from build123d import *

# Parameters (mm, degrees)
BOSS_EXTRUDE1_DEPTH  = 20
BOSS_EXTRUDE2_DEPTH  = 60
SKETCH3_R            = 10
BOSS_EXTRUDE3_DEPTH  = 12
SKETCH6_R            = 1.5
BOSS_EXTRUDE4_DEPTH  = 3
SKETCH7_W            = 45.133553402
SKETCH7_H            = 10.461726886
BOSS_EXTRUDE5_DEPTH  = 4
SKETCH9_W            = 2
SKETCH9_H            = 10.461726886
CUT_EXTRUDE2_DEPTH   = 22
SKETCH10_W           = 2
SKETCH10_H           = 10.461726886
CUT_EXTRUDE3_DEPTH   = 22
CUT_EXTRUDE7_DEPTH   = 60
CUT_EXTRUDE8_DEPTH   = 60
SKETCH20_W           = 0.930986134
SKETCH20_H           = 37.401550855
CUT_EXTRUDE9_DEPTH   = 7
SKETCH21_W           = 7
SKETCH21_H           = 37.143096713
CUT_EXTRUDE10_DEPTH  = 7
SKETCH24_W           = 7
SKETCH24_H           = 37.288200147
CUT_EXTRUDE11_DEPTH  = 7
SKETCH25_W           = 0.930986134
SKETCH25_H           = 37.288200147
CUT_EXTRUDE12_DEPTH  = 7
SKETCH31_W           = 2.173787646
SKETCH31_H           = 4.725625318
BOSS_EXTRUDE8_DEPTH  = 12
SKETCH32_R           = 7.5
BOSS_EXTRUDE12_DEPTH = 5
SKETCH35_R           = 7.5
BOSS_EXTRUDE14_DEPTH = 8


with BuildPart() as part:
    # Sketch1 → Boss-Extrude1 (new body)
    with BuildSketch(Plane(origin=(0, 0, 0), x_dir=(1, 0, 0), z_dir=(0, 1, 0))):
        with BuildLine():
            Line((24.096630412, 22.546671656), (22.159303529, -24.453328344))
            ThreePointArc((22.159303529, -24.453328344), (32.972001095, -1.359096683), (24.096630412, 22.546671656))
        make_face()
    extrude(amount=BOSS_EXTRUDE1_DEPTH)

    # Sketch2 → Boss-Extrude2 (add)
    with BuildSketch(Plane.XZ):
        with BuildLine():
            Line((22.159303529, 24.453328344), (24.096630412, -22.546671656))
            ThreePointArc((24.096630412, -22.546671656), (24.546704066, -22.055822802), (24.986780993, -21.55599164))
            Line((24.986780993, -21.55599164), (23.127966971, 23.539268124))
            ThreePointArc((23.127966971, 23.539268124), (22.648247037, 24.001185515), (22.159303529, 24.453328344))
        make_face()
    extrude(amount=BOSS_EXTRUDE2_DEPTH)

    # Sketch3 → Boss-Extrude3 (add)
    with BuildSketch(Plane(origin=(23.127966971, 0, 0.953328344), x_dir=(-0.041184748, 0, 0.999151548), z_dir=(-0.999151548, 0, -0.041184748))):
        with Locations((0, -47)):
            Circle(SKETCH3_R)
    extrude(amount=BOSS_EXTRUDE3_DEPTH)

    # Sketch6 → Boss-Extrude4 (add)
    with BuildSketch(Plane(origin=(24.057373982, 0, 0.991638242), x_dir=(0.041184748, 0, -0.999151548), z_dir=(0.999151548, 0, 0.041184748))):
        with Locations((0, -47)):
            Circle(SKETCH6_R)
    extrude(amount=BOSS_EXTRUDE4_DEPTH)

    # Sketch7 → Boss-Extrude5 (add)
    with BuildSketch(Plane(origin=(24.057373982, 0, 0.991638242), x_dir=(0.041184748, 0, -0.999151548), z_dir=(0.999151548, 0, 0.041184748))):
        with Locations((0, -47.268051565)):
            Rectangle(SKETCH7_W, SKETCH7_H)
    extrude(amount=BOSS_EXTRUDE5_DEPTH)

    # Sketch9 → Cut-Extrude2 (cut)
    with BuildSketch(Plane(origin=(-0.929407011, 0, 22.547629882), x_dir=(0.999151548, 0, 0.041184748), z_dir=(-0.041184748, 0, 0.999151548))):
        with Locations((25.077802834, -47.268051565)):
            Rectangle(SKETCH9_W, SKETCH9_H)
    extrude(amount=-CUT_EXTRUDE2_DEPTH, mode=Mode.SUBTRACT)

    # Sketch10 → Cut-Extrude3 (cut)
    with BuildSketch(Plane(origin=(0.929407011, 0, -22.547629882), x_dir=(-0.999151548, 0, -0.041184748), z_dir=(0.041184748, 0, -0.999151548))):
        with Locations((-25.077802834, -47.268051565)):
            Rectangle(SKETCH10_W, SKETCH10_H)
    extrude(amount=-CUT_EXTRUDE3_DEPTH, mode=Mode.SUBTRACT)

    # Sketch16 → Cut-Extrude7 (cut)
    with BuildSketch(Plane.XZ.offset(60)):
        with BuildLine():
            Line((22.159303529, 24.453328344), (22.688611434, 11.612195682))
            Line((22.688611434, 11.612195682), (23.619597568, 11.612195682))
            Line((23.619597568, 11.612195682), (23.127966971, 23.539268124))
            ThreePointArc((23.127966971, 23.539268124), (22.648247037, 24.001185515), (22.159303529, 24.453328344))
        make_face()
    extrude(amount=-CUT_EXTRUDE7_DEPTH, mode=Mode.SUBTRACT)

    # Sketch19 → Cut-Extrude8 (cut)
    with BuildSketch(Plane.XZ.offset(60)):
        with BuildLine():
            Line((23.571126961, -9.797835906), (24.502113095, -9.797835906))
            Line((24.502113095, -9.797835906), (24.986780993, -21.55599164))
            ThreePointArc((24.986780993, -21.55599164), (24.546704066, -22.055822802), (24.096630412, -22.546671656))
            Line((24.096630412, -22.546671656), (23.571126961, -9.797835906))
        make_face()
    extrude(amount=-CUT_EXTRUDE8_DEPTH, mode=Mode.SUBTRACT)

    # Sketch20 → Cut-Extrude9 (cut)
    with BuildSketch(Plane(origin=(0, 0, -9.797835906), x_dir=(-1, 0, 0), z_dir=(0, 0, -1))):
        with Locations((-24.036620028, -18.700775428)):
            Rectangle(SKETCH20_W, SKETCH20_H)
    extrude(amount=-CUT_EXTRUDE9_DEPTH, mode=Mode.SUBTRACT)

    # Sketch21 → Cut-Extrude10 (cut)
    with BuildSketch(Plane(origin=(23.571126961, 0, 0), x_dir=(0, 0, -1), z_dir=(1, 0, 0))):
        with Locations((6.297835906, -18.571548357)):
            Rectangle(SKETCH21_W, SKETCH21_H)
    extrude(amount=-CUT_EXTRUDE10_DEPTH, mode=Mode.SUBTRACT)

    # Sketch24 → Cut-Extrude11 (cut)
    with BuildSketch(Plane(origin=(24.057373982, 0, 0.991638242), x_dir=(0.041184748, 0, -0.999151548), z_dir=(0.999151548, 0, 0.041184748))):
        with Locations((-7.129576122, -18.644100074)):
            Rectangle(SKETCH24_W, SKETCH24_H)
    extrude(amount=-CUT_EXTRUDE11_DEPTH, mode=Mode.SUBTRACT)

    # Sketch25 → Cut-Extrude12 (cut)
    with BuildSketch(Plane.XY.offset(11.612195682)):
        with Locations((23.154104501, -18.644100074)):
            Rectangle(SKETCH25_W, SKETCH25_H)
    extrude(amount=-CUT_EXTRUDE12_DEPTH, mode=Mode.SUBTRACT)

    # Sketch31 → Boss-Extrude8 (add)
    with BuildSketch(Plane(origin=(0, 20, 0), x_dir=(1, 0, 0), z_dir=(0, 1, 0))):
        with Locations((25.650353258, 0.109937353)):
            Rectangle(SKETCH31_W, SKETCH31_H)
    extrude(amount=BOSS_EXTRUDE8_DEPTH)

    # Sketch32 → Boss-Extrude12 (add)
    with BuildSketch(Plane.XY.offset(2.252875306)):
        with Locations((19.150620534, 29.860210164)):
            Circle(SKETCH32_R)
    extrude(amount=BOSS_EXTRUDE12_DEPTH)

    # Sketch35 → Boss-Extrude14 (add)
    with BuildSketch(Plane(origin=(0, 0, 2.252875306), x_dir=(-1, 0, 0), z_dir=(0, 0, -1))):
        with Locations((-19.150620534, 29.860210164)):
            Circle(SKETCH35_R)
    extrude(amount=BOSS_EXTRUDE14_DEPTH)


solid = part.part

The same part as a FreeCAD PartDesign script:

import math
import FreeCAD as App
import Part
import Sketcher

V = App.Vector


def add_polygon(sketch, points):
    """Adds a closed chain of lines whose ends are joined by coincident constraints."""
    first, n = sketch.GeometryCount, len(points)
    for a, b in zip(points, points[1:] + points[:1]):
        sketch.addGeometry(Part.LineSegment(App.Vector(*a, 0), App.Vector(*b, 0)), False)
    for i in range(n):
        sketch.addConstraint(Sketcher.Constraint("Coincident", first + i, 2, first + (i + 1) % n, 1))

doc = App.newDocument("Part")
body = doc.addObject("PartDesign::Body", "Body")

sketch1 = body.newObject("Sketcher::SketchObject", "Sketch")
sketch1.AttachmentSupport = (doc.getObject("XZ_Plane"), [""])
sketch1.MapMode = "FlatFace"
sketch1.addGeometry([
    Part.LineSegment(V(24, -23, 0), V(22, 24, 0)),
    Part.ArcOfCircle(Part.Circle(V(0, 0, 0), V(0, 0, 1), 33), math.radians(-43), math.radians(48)),
], False)
sketch1.addConstraint([
    Sketcher.Constraint("Coincident", 0, 1, 1, 1),
    Sketcher.Constraint("Coincident", 1, 2, 0, 2),
    Sketcher.Constraint("Coincident", 1, 3, -1, 1),
    Sketcher.Constraint("Radius", 1, 33.0),
    Sketcher.Constraint("DistanceY", 0, 1, 1, 2, 47.0),
    Sketcher.Constraint("Distance", 0, 47.039911),
])
pad1 = body.newObject("PartDesign::Pad", "Pad")
pad1.Profile = sketch1
pad1.Length = 20
pad1.Reversed = True

sketch2 = body.newObject("Sketcher::SketchObject", "Sketch001")
sketch2.AttachmentSupport = (doc.getObject("XZ_Plane"), [""])
sketch2.MapMode = "FlatFace"
sketch2.addGeometry([
    Part.LineSegment(V(22.2, 24.5, 0), V(24.1, -22.5, 0)),
    Part.ArcOfCircle(Part.Circle(V(0, 0, 0), V(0, 0, 1), 33), math.radians(-43.1), math.radians(-40.78)),
    Part.LineSegment(V(25, -21.6, 0), V(23.1, 23.5, 0)),
    Part.ArcOfCircle(Part.Circle(V(0, 0, 0), V(0, 0, 1), 33), math.radians(45.5), math.radians(47.82)),
], False)
sketch2.addConstraint([
    Sketcher.Constraint("Coincident", 0, 2, 1, 1),
    Sketcher.Constraint("Coincident", 1, 2, 2, 1),
    Sketcher.Constraint("Coincident", 2, 2, 3, 1),
    Sketcher.Constraint("Coincident", 3, 2, 0, 1),
    Sketcher.Constraint("Coincident", 1, 3, -1, 1),
    Sketcher.Constraint("Coincident", 3, 3, -1, 1),
    Sketcher.Constraint("Parallel", 0, 2),
    Sketcher.Constraint("Radius", 1, 33.0),
    Sketcher.Constraint("DistanceY", 0, 2, 3, 2, 47.0),
    Sketcher.Constraint("Radius", 3, 33.000002),
    Sketcher.Constraint("Distance", 0, 47.039911),
    Sketcher.Constraint("DistanceX", -1, 1, 1, 2, 24.986781),
])
pad2 = body.newObject("PartDesign::Pad", "Pad001")
pad2.Profile = sketch2
pad2.Length = 60

sketch3 = body.newObject("Sketcher::SketchObject", "Sketch002")
sketch3.Placement = App.Placement(V(23.127967, 0, 0.953328), App.Rotation(V(-0.041184748, 0, 0.999151548), V(0, 0.999999999, 0), V(-0.999151548, 0, -0.041184748), "ZXY"))
sketch3.addGeometry(Part.Circle(V(0, -47, 0), V(0, 0, 1), 10), False)
sketch3.addConstraint([
    Sketcher.Constraint("PointOnObject", 0, 3, -2),
    Sketcher.Constraint("Diameter", 0, 20.0),
    Sketcher.Constraint("DistanceY", 0, 3, -1, 1, 47.0),
])
pad3 = body.newObject("PartDesign::Pad", "Pad002")
pad3.Profile = sketch3
pad3.Length = 12

sketch4 = body.newObject("Sketcher::SketchObject", "Sketch003")
sketch4.Placement = App.Placement(V(24.057374, 0, 0.991638), App.Rotation(V(0.041184748, 0, -0.999151548), V(0, 0.999999999, 0), V(0.999151548, 0, 0.041184748), "ZXY"))
sketch4.addGeometry(Part.Circle(V(0, -47, 0), V(0, 0, 1), 1.5), False)
sketch4.addConstraint([
    Sketcher.Constraint("PointOnObject", 0, 3, -2),
    Sketcher.Constraint("Diameter", 0, 3.0),
    Sketcher.Constraint("DistanceY", 0, 3, -1, 1, 47.0),
])
pad4 = body.newObject("PartDesign::Pad", "Pad003")
pad4.Profile = sketch4
pad4.Length = 3

sketch5 = body.newObject("Sketcher::SketchObject", "Sketch004")
sketch5.Placement = App.Placement(V(24.057374, 0, 0.991638), App.Rotation(V(0.041184748, 0, -0.999151548), V(0, 0.999999999, 0), V(0.999151548, 0, 0.041184748), "ZXY"))
add_polygon(sketch5, [(-23, -42), (-23, -52), (23, -52), (23, -42)])
sketch5.addConstraint([
    Sketcher.Constraint("Vertical", 0),
    Sketcher.Constraint("Horizontal", 1),
    Sketcher.Constraint("Vertical", 2),
    Sketcher.Constraint("Horizontal", 3),
    Sketcher.Constraint("DistanceX", 1, 1, 1, 2, 45.133553),
    Sketcher.Constraint("DistanceY", 0, 2, 0, 1, 10.461727),
    Sketcher.Constraint("DistanceY", 2, 2, -1, 1, 42.037188),
    Sketcher.Constraint("DistanceX", 0, 2, -1, 1, 22.566777),
])
pad5 = body.newObject("PartDesign::Pad", "Pad004")
pad5.Profile = sketch5
pad5.Length = 4

sketch6 = body.newObject("Sketcher::SketchObject", "Sketch005")
sketch6.Placement = App.Placement(V(-0.929407, 0, 22.54763), App.Rotation(V(0.999151548, 0, 0.041184748), V(0, 0.999999999, 0), V(-0.041184748, 0, 0.999151548), "ZXY"))
add_polygon(sketch6, [(24.1, -42), (24.1, -52.5), (26.1, -52.5), (26.1, -42)])
sketch6.addConstraint([
    Sketcher.Constraint("Vertical", 0),
    Sketcher.Constraint("Horizontal", 1),
    Sketcher.Constraint("Vertical", 2),
    Sketcher.Constraint("Horizontal", 3),
    Sketcher.Constraint("DistanceX", 1, 1, 1, 2, 2.0),
    Sketcher.Constraint("DistanceY", 0, 2, 0, 1, 10.461727),
    Sketcher.Constraint("DistanceY", 2, 2, -1, 1, 42.037188),
    Sketcher.Constraint("DistanceX", -1, 1, 0, 2, 24.077803),
])
pocket1 = body.newObject("PartDesign::Pocket", "Pocket")
pocket1.Profile = sketch6
pocket1.Length = 22

sketch7 = body.newObject("Sketcher::SketchObject", "Sketch006")
sketch7.Placement = App.Placement(V(0.929407, 0, -22.54763), App.Rotation(V(-0.999151548, 0, -0.041184748), V(0, 0.999999999, 0), V(0.041184748, 0, -0.999151548), "ZXY"))
add_polygon(sketch7, [(-26.1, -42), (-26.1, -52.5), (-24.1, -52.5), (-24.1, -42)])
sketch7.addConstraint([
    Sketcher.Constraint("Vertical", 0),
    Sketcher.Constraint("Horizontal", 1),
    Sketcher.Constraint("Vertical", 2),
    Sketcher.Constraint("Horizontal", 3),
    Sketcher.Constraint("DistanceX", 1, 1, 1, 2, 2.0),
    Sketcher.Constraint("DistanceY", 0, 2, 0, 1, 10.461727),
    Sketcher.Constraint("DistanceY", 2, 2, -1, 1, 42.037188),
    Sketcher.Constraint("DistanceX", 0, 2, -1, 1, 26.077803),
])
pocket2 = body.newObject("PartDesign::Pocket", "Pocket001")
pocket2.Profile = sketch7
pocket2.Length = 22

sketch8 = body.newObject("Sketcher::SketchObject", "Sketch007")
sketch8.AttachmentSupport = (doc.getObject("XZ_Plane"), [""])
sketch8.MapMode = "FlatFace"
sketch8.AttachmentOffset = App.Placement(V(0, 0, 60), App.Rotation())
sketch8.addGeometry([
    Part.LineSegment(V(22.2, 24.5, 0), V(22.7, 11.6, 0)),
    Part.LineSegment(V(22.7, 11.6, 0), V(23.6, 11.6, 0)),
    Part.LineSegment(V(23.6, 11.6, 0), V(23.1, 23.5, 0)),
    Part.ArcOfCircle(Part.Circle(V(0, 0, 0), V(0, 0, 1), 33), math.radians(45.5), math.radians(47.82)),
], False)
sketch8.addConstraint([
    Sketcher.Constraint("Coincident", 0, 2, 1, 1),
    Sketcher.Constraint("Coincident", 1, 2, 2, 1),
    Sketcher.Constraint("Coincident", 2, 2, 3, 1),
    Sketcher.Constraint("Coincident", 3, 2, 0, 1),
    Sketcher.Constraint("Horizontal", 1),
    Sketcher.Constraint("Coincident", 3, 3, -1, 1),
    Sketcher.Constraint("Parallel", 0, 2),
    Sketcher.Constraint("Radius", 3, 33.000002),
    Sketcher.Constraint("Distance", 2, 11.937201),
    Sketcher.Constraint("DistanceX", 3, 3, 1, 2, 23.619599),
    Sketcher.Constraint("DistanceX", 1, 1, 1, 2, 0.930986),
    Sketcher.Constraint("DistanceY", -1, 1, 2, 2, 23.539268),
])
pocket3 = body.newObject("PartDesign::Pocket", "Pocket002")
pocket3.Profile = sketch8
pocket3.Length = 60

sketch9 = body.newObject("Sketcher::SketchObject", "Sketch008")
sketch9.AttachmentSupport = (doc.getObject("XZ_Plane"), [""])
sketch9.MapMode = "FlatFace"
sketch9.AttachmentOffset = App.Placement(V(0, 0, 60), App.Rotation())
sketch9.addGeometry([
    Part.LineSegment(V(24.5, -9.8, 0), V(23.6, -9.8, 0)),
    Part.LineSegment(V(23.6, -9.8, 0), V(24.1, -22.5, 0)),
    Part.ArcOfCircle(Part.Circle(V(0, 0, 0), V(0, 0, 1), 33), math.radians(-43.1), math.radians(-40.78)),
    Part.LineSegment(V(25, -21.6, 0), V(24.5, -9.8, 0)),
], False)
sketch9.addConstraint([
    Sketcher.Constraint("Coincident", 0, 2, 1, 1),
    Sketcher.Constraint("Coincident", 1, 2, 2, 1),
    Sketcher.Constraint("Coincident", 2, 2, 3, 1),
    Sketcher.Constraint("Coincident", 3, 2, 0, 1),
    Sketcher.Constraint("Horizontal", 0),
    Sketcher.Constraint("Coincident", 2, 3, -1, 1),
    Sketcher.Constraint("Parallel", 1, 3),
    Sketcher.Constraint("Radius", 2, 33.0),
    Sketcher.Constraint("Distance", 1, 12.759662),
    Sketcher.Constraint("Distance", 3, 11.76814),
    Sketcher.Constraint("DistanceX", 0, 2, 0, 1, 0.930986),
    Sketcher.Constraint("DistanceX", -1, 1, 1, 2, 24.09663),
])
pocket4 = body.newObject("PartDesign::Pocket", "Pocket003")
pocket4.Profile = sketch9
pocket4.Length = 60

sketch10 = body.newObject("Sketcher::SketchObject", "Sketch009")
sketch10.AttachmentSupport = (doc.getObject("XY_Plane"), [""])
sketch10.MapMode = "FlatFace"
sketch10.AttachmentOffset = App.Placement(V(0, 0, -9.797836), App.Rotation())
add_polygon(sketch10, [(24.5, 0), (24.5, -37.4), (23.6, -37.4), (23.6, 0)])
sketch10.addConstraint([
    Sketcher.Constraint("Vertical", 0),
    Sketcher.Constraint("Horizontal", 1),
    Sketcher.Constraint("Vertical", 2),
    Sketcher.Constraint("Horizontal", 3),
    Sketcher.Constraint("PointOnObject", 2, 2, -1),
    Sketcher.Constraint("DistanceY", 0, 2, 0, 1, 37.401551),
    Sketcher.Constraint("DistanceX", 1, 2, 1, 1, 0.930986),
    Sketcher.Constraint("DistanceX", -1, 1, 0, 2, 24.502113),
])
pocket5 = body.newObject("PartDesign::Pocket", "Pocket004")
pocket5.Profile = sketch10
pocket5.Length = 7
pocket5.Reversed = True

sketch11 = body.newObject("Sketcher::SketchObject", "Sketch010")
sketch11.AttachmentSupport = (doc.getObject("YZ_Plane"), [""])
sketch11.MapMode = "FlatFace"
sketch11.AttachmentOffset = App.Placement(V(0, 0, 23.571127), App.Rotation())
add_polygon(sketch11, [(0, -3), (-37, -3), (-37, -10), (0, -10)])
sketch11.addConstraint([
    Sketcher.Constraint("Horizontal", 0),
    Sketcher.Constraint("Vertical", 1),
    Sketcher.Constraint("Horizontal", 2),
    Sketcher.Constraint("Vertical", 3),
    Sketcher.Constraint("PointOnObject", 2, 2, -2),
    Sketcher.Constraint("DistanceY", 1, 2, 1, 1, 7.0),
    Sketcher.Constraint("DistanceX", 0, 2, 0, 1, 37.143097),
    Sketcher.Constraint("DistanceY", 0, 2, -1, 1, 2.797836),
])
pocket6 = body.newObject("PartDesign::Pocket", "Pocket005")
pocket6.Profile = sketch11
pocket6.Length = 7

sketch12 = body.newObject("Sketcher::SketchObject", "Sketch011")
sketch12.Placement = App.Placement(V(24.057374, 0, 0.991638), App.Rotation(V(0.041184748, 0, -0.999151548), V(0, 0.999999999, 0), V(0.999151548, 0, 0.041184748), "ZXY"))
add_polygon(sketch12, [(-11, 0), (-11, -37), (-4, -37), (-4, 0)])
sketch12.addConstraint([
    Sketcher.Constraint("Vertical", 0),
    Sketcher.Constraint("Horizontal", 1),
    Sketcher.Constraint("Vertical", 2),
    Sketcher.Constraint("Horizontal", 3),
    Sketcher.Constraint("PointOnObject", 2, 2, -1),
    Sketcher.Constraint("DistanceX", 1, 1, 1, 2, 7.0),
    Sketcher.Constraint("DistanceY", 0, 2, 0, 1, 37.2882),
    Sketcher.Constraint("DistanceX", 0, 2, -1, 1, 10.629576),
])
pocket7 = body.newObject("PartDesign::Pocket", "Pocket006")
pocket7.Profile = sketch12
pocket7.Length = 7

sketch13 = body.newObject("Sketcher::SketchObject", "Sketch012")
sketch13.AttachmentSupport = (doc.getObject("XY_Plane"), [""])
sketch13.MapMode = "FlatFace"
sketch13.AttachmentOffset = App.Placement(V(0, 0, 11.612196), App.Rotation())
add_polygon(sketch13, [(22.7, 0), (22.7, -37.3), (23.6, -37.3), (23.6, 0)])
sketch13.addConstraint([
    Sketcher.Constraint("Vertical", 0),
    Sketcher.Constraint("Horizontal", 1),
    Sketcher.Constraint("Vertical", 2),
    Sketcher.Constraint("Horizontal", 3),
    Sketcher.Constraint("PointOnObject", 2, 2, -1),
    Sketcher.Constraint("DistanceY", 0, 2, 0, 1, 37.2882),
    Sketcher.Constraint("DistanceX", 1, 1, 1, 2, 0.930986),
    Sketcher.Constraint("DistanceX", -1, 1, 0, 2, 22.688611),
])
pocket8 = body.newObject("PartDesign::Pocket", "Pocket007")
pocket8.Profile = sketch13
pocket8.Length = 7

sketch14 = body.newObject("Sketcher::SketchObject", "Sketch013")
sketch14.AttachmentSupport = (doc.getObject("XZ_Plane"), [""])
sketch14.MapMode = "FlatFace"
sketch14.AttachmentOffset = App.Placement(V(0, 0, -20), App.Rotation())
add_polygon(sketch14, [(24.6, -2.5), (24.6, 2.3), (26.7, 2.3), (26.7, -2.5)])
sketch14.addConstraint([
    Sketcher.Constraint("Vertical", 0),
    Sketcher.Constraint("Horizontal", 1),
    Sketcher.Constraint("Vertical", 2),
    Sketcher.Constraint("Horizontal", 3),
    Sketcher.Constraint("DistanceX", 1, 1, 1, 2, 2.173788),
    Sketcher.Constraint("DistanceY", 0, 1, 0, 2, 4.725625),
    Sketcher.Constraint("DistanceX", -1, 1, 0, 2, 24.563459),
    Sketcher.Constraint("DistanceY", 2, 2, -1, 1, 2.47275),
])
pad6 = body.newObject("PartDesign::Pad", "Pad005")
pad6.Profile = sketch14
pad6.Length = 12
pad6.Reversed = True

sketch15 = body.newObject("Sketcher::SketchObject", "Sketch014")
sketch15.AttachmentSupport = (doc.getObject("XY_Plane"), [""])
sketch15.MapMode = "FlatFace"
sketch15.AttachmentOffset = App.Placement(V(0, 0, 2.252875), App.Rotation())
sketch15.addGeometry(Part.Circle(V(19, 30, 0), V(0, 0, 1), 8), False)
sketch15.addConstraint([
    Sketcher.Constraint("Diameter", 0, 15.0),
    Sketcher.Constraint("DistanceX", -1, 1, 0, 3, 19.150621),
    Sketcher.Constraint("DistanceY", -1, 1, 0, 3, 29.86021),
])
pad7 = body.newObject("PartDesign::Pad", "Pad006")
pad7.Profile = sketch15
pad7.Length = 5

sketch16 = body.newObject("Sketcher::SketchObject", "Sketch015")
sketch16.AttachmentSupport = (doc.getObject("XY_Plane"), [""])
sketch16.MapMode = "FlatFace"
sketch16.AttachmentOffset = App.Placement(V(0, 0, 2.252875), App.Rotation())
sketch16.addGeometry(Part.Circle(V(19, 30, 0), V(0, 0, 1), 8), False)
sketch16.addConstraint([
    Sketcher.Constraint("Diameter", 0, 15.0),
    Sketcher.Constraint("DistanceX", -1, 1, 0, 3, 19.150621),
    Sketcher.Constraint("DistanceY", -1, 1, 0, 3, 29.86021),
])
pad8 = body.newObject("PartDesign::Pad", "Pad007")
pad8.Profile = sketch16
pad8.Length = 8
pad8.Reversed = True

doc.recompute()
